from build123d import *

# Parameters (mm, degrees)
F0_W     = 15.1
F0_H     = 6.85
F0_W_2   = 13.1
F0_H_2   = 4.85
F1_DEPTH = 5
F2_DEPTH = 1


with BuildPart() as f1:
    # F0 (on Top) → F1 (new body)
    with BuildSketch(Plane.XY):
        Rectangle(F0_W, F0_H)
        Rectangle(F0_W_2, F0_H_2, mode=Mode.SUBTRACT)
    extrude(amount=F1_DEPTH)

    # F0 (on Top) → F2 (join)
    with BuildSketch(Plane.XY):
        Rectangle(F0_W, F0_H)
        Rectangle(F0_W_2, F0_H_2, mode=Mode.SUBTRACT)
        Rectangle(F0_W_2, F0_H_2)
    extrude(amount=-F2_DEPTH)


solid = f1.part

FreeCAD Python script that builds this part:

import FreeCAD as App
import Part
import Sketcher
Q = App.Units.Quantity

doc = App.newDocument("Part")
params = doc.addObject("Spreadsheet::Sheet", "Params")
for row, (alias, value) in enumerate([
    ("sketch1_width", "15.1 mm"),
    ("sketch1_width2", "13.1 mm"),
    ("sketch1_height", "6.85 mm"),
    ("pad1_length", "5 mm"),
    ("sketch2_width", "15.1 mm"),
    ("sketch2_height", "6.85 mm"),
    ("pad2_length", "1 mm"),
], start=1):
    params.set(f"A{row}", alias)
    params.set(f"B{row}", "=" + value)
    params.setAlias(f"B{row}", alias)

body = doc.addObject("PartDesign::Body", "Body")

# Sketch on XY plane
sketch1 = body.newObject("Sketcher::SketchObject", "Sketch")
sketch1.AttachmentSupport = (doc.getObject("XY_Plane"), [""])
sketch1.MapMode = "FlatFace"
sketch1.addGeometry([
    Part.LineSegment(App.Vector(-7.5, 3.4, 0), App.Vector(-7.5, -3.4, 0)),  # 0
    Part.LineSegment(App.Vector(-7.5, -3.4, 0), App.Vector(7.5, -3.4, 0)),  # 1
    Part.LineSegment(App.Vector(7.5, -3.4, 0), App.Vector(7.5, 3.4, 0)),  # 2
    Part.LineSegment(App.Vector(7.5, 3.4, 0), App.Vector(-7.5, 3.4, 0)),  # 3
    Part.LineSegment(App.Vector(6.5, -2.4, 0), App.Vector(-6.5, -2.4, 0)),  # 4
    Part.LineSegment(App.Vector(-6.5, -2.4, 0), App.Vector(-6.5, 2.4, 0)),  # 5
    Part.LineSegment(App.Vector(-6.5, 2.4, 0), App.Vector(6.5, 2.4, 0)),  # 6
    Part.LineSegment(App.Vector(6.5, 2.4, 0), App.Vector(6.5, -2.4, 0)),  # 7
], False)
sketch1.addConstraint([
    Sketcher.Constraint("Coincident", 0, 2, 1, 1),
    Sketcher.Constraint("Coincident", 1, 2, 2, 1),
    Sketcher.Constraint("Coincident", 2, 2, 3, 1),
    Sketcher.Constraint("Coincident", 3, 2, 0, 1),
    Sketcher.Constraint("Coincident", 4, 2, 5, 1),
    Sketcher.Constraint("Coincident", 5, 2, 6, 1),
    Sketcher.Constraint("Coincident", 6, 2, 7, 1),
    Sketcher.Constraint("Coincident", 7, 2, 4, 1),
    Sketcher.Constraint("Vertical", 0),
    Sketcher.Constraint("Horizontal", 1),
    Sketcher.Constraint("Vertical", 2),
    Sketcher.Constraint("Horizontal", 3),
    Sketcher.Constraint("Horizontal", 4),
    Sketcher.Constraint("Vertical", 5),
    Sketcher.Constraint("Horizontal", 6),
    Sketcher.Constraint("Vertical", 7),
    Sketcher.Constraint("Symmetric", 0, 2, 2, 2, -1, 1),
    Sketcher.Constraint("Symmetric", 4, 2, 6, 2, -1, 1),
    Sketcher.Constraint("DistanceX", 1, 1, 1, 2, Q("15.1 mm")),
    Sketcher.Constraint("DistanceX", 4, 2, 4, 1, Q("13.1 mm")),
    Sketcher.Constraint("DistanceY", 0, 2, 4, 2, Q("1 mm")),
    Sketcher.Constraint("DistanceY", 0, 2, 0, 1, Q("6.85 mm")),
])
sketch1.setExpression("Constraints[18]", "Params.sketch1_width")
sketch1.setExpression("Constraints[19]", "Params.sketch1_width2")
sketch1.setExpression("Constraints[21]", "Params.sketch1_height")
pad1 = body.newObject("PartDesign::Pad", "Pad")
pad1.Profile = sketch1
pad1.setExpression("Length", "Params.pad1_length")

# Sketch on XY plane
sketch2 = body.newObject("Sketcher::SketchObject", "Sketch001")
sketch2.AttachmentSupport = (doc.getObject("XY_Plane"), [""])
sketch2.MapMode = "FlatFace"
sketch2.addGeometry([
    Part.LineSegment(App.Vector(-8, 3, 0), App.Vector(-8, -3, 0)),
    Part.LineSegment(App.Vector(-8, -3, 0), App.Vector(8, -3, 0)),
    Part.LineSegment(App.Vector(8, -3, 0), App.Vector(8, 3, 0)),
    Part.LineSegment(App.Vector(8, 3, 0), App.Vector(-8, 3, 0)),
], False)
sketch2.addConstraint([
    Sketcher.Constraint("Coincident", 0, 2, 1, 1),
    Sketcher.Constraint("Coincident", 1, 2, 2, 1),
    Sketcher.Constraint("Coincident", 2, 2, 3, 1),
    Sketcher.Constraint("Coincident", 3, 2, 0, 1),
    Sketcher.Constraint("Vertical", 0),
    Sketcher.Constraint("Horizontal", 1),
    Sketcher.Constraint("Vertical", 2),
    Sketcher.Constraint("Horizontal", 3),
    Sketcher.Constraint("Symmetric", 0, 2, 2, 2, -1, 1),
    Sketcher.Constraint("DistanceX", 1, 1, 1, 2, Q("15.1 mm")),
    Sketcher.Constraint("DistanceY", 0, 2, 0, 1, Q("6.85 mm")),
])
sketch2.setExpression("Constraints[9]", "Params.sketch2_width")
sketch2.setExpression("Constraints[10]", "Params.sketch2_height")
pad2 = body.newObject("PartDesign::Pad", "Pad001")
pad2.Profile = sketch2
pad2.setExpression("Length", "Params.pad2_length")
pad2.Reversed = True

doc.recompute()
